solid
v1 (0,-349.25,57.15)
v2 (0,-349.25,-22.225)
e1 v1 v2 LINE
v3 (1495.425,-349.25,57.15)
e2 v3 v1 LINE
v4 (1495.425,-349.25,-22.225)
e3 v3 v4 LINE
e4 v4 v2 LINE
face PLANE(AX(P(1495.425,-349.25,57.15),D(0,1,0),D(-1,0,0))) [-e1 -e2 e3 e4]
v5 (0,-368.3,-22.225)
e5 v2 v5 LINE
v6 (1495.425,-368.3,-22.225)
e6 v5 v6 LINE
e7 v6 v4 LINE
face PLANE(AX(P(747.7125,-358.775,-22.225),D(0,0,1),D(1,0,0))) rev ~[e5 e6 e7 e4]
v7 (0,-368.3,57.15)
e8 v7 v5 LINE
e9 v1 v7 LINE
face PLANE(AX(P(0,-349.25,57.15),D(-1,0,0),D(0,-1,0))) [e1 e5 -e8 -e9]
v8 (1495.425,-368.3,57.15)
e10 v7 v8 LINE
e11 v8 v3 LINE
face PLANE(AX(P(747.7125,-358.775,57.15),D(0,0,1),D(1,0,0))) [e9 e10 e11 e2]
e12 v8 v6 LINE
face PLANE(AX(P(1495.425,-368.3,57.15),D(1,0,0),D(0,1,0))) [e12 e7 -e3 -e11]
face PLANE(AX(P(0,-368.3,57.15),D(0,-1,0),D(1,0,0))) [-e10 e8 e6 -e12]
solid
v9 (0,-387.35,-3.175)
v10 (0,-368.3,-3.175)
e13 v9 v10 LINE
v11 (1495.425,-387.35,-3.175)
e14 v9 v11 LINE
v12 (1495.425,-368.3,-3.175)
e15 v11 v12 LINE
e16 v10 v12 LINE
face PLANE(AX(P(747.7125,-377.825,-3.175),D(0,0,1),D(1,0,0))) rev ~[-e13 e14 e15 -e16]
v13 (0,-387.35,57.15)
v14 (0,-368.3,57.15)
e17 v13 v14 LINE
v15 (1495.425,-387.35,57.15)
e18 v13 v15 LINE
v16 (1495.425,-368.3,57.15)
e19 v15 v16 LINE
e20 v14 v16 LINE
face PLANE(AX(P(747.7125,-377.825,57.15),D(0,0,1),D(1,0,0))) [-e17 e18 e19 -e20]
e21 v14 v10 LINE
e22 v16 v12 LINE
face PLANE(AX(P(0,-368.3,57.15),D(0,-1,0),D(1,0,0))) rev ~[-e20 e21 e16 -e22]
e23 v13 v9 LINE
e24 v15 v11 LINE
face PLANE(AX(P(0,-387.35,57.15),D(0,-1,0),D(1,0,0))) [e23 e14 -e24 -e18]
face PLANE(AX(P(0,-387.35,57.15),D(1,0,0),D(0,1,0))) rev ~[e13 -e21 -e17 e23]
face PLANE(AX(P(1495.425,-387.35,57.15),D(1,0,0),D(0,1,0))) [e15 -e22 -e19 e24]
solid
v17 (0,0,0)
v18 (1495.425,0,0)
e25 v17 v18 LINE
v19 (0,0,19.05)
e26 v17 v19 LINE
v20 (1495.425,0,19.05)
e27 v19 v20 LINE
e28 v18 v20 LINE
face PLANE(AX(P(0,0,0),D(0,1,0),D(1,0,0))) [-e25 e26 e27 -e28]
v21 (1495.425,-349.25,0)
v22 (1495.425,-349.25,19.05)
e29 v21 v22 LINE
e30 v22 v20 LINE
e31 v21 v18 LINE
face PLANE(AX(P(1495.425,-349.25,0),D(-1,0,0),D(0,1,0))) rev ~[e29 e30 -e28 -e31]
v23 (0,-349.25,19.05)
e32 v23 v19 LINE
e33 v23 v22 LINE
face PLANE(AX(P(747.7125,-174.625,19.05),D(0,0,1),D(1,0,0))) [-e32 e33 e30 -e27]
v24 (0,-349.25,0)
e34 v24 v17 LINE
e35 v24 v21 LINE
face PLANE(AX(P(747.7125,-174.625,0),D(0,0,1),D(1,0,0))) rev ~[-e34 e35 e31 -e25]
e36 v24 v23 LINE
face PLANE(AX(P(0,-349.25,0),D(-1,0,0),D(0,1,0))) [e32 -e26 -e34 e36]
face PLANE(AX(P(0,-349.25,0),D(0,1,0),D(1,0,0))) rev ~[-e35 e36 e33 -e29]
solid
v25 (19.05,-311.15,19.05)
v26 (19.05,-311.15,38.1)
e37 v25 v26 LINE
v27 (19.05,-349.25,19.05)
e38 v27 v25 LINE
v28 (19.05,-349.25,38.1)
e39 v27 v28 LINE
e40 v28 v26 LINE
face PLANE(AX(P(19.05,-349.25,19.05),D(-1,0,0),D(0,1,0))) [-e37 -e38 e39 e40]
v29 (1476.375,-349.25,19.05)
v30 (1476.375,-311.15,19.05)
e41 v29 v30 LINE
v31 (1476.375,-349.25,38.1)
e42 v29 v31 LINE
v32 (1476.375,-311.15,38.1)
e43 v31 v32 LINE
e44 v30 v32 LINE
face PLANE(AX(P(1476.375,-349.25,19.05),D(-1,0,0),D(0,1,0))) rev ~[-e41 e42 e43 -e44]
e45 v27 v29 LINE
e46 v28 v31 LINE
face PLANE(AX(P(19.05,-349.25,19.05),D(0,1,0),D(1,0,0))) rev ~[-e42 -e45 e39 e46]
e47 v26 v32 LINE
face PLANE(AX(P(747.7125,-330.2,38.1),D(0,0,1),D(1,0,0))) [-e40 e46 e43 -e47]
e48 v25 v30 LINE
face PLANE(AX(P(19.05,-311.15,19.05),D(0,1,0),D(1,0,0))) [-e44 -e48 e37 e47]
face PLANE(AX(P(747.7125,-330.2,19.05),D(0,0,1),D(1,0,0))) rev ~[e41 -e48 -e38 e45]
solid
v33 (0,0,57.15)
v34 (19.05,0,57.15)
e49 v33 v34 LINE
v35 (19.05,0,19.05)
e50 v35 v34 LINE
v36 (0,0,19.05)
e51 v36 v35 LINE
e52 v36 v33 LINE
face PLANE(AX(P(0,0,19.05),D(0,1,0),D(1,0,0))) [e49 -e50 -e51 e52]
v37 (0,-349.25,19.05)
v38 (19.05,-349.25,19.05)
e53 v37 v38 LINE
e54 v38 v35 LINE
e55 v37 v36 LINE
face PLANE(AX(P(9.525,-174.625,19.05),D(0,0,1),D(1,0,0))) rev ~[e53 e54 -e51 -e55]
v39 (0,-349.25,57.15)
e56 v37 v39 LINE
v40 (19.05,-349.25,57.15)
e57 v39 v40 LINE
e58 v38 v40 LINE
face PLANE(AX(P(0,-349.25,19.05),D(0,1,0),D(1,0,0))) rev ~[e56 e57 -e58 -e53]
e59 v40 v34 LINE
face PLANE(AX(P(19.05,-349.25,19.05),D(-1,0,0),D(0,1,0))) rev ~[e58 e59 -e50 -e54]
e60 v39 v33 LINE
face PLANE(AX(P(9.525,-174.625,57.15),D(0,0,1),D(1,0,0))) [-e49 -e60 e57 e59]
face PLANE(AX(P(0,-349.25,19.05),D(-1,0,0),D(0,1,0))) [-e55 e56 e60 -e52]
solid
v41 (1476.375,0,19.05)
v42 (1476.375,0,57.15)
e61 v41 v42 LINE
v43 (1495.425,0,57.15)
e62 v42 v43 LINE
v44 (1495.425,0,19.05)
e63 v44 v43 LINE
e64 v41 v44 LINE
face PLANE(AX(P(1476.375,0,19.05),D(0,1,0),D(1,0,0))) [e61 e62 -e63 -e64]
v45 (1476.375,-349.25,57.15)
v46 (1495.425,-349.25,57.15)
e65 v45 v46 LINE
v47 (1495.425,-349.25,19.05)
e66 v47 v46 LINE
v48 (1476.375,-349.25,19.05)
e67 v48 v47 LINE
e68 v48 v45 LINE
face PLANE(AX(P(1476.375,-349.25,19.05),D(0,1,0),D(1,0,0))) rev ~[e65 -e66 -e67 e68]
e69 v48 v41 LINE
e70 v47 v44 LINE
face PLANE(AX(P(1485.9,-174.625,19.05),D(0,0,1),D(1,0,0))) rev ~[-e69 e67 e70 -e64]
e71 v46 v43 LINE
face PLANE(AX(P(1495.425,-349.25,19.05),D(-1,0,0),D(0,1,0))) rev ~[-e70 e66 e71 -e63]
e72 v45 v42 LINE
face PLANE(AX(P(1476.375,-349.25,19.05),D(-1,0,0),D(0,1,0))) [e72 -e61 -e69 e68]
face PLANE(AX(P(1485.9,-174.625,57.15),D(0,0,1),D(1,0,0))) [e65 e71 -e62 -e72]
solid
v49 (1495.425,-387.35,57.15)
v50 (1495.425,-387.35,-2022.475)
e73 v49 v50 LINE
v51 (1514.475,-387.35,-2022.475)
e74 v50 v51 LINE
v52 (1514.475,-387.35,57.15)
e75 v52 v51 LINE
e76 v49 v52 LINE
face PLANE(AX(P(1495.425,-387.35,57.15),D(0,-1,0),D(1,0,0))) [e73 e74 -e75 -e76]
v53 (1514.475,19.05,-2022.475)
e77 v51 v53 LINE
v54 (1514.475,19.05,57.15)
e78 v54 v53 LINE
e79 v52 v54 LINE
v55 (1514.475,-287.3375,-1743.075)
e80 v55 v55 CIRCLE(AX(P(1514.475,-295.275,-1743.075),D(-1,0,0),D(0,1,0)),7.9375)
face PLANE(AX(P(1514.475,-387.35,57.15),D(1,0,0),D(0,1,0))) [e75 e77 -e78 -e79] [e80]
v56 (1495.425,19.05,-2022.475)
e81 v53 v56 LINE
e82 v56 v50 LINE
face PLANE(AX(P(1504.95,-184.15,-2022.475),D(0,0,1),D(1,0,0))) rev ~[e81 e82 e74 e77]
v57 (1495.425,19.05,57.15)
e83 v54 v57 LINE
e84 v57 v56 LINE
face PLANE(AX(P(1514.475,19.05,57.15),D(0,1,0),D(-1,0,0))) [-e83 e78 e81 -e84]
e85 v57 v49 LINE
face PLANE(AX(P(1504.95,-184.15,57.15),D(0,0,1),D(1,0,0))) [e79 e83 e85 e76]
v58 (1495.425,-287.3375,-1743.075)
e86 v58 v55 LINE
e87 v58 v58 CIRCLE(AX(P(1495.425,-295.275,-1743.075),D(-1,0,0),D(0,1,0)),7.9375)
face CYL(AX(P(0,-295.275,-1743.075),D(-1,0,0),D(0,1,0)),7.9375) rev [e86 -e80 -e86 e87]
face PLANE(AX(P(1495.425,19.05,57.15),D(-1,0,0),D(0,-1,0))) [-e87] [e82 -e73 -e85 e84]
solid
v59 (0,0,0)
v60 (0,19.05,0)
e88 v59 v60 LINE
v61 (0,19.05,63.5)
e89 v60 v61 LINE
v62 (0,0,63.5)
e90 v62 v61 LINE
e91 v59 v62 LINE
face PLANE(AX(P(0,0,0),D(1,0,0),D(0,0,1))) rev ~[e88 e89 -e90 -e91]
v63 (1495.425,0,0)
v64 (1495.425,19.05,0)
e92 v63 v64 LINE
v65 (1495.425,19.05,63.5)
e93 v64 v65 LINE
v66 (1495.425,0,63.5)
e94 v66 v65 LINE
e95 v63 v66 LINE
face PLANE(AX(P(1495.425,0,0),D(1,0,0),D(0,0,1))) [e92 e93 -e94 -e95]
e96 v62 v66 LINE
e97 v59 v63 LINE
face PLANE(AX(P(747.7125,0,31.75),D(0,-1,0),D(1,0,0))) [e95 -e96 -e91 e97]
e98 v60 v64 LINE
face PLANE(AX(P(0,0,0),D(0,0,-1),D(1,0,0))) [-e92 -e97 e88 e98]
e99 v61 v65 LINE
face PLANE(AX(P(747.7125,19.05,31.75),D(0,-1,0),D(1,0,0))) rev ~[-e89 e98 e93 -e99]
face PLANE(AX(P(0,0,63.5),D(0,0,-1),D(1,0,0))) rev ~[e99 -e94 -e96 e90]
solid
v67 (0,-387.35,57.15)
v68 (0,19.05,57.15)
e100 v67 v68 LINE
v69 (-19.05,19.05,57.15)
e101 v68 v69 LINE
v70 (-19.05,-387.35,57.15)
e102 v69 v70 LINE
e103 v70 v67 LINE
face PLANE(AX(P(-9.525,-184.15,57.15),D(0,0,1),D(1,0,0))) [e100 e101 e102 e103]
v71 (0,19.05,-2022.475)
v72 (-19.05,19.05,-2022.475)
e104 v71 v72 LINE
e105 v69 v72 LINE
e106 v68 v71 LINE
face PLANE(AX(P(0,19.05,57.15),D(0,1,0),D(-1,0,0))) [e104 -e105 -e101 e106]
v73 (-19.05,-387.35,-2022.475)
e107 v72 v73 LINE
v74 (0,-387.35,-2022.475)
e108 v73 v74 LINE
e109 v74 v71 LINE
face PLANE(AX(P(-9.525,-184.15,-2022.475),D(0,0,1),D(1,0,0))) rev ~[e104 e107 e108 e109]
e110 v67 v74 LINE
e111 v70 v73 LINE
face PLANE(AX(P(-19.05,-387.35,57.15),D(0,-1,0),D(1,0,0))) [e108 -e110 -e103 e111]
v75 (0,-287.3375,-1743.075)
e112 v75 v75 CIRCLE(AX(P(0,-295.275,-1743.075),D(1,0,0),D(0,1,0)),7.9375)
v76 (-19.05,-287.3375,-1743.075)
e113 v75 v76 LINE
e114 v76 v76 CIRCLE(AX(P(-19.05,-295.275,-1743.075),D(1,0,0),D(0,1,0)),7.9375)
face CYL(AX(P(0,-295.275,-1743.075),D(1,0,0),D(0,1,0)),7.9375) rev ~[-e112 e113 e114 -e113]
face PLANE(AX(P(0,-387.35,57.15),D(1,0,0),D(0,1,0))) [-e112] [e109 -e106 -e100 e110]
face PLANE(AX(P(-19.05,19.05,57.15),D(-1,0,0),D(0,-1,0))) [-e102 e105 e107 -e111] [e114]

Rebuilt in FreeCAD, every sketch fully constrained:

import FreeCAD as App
import Part
import Sketcher

V = App.Vector
Q = App.Units.Quantity


def add_polygon(sketch, points):
    """Adds a closed chain of lines whose ends are joined by coincident constraints."""
    first, n = sketch.GeometryCount, len(points)
    for a, b in zip(points, points[1:] + points[:1]):
        sketch.addGeometry(Part.LineSegment(App.Vector(*a, 0), App.Vector(*b, 0)), False)
    for i in range(n):
        sketch.addConstraint(Sketcher.Constraint("Coincident", first + i, 2, first + (i + 1) % n, 1))

doc = App.newDocument("Part")
params = doc.addObject("Spreadsheet::Sheet", "Params")
for row, (alias, value) in enumerate([
    ("sketch1_height", "13.75 in"),
    ("sketch1_width", "58.875 in"),
    ("pad1_length", "0.75 in"),
    ("sketch2_width", "0.75 in"),
    ("sketch2_height", "13.75 in"),
    ("pad2_length", "1.5 in"),
    ("sketch3_width", "0.75 in"),
    ("sketch3_height", "13.75 in"),
    ("pad3_length", "1.5 in"),
    ("sketch4_height", "2.5 in"),
    ("sketch4_width", "58.875 in"),
    ("pad4_length", "0.75 in"),
    ("sketch5_height", "0.75 in"),
    ("sketch5_width", "58.875 in"),
    ("pad5_length", "3.125 in"),
    ("sketch6_height", "0.75 in"),
    ("sketch6_width", "58.875 in"),
    ("pad6_length", "2.375 in"),
    ("sketch7_height", "1.5 in"),
    ("sketch7_width", "57.375 in"),
    ("pad7_length", "0.75 in"),
    ("sketch8_height", "16 in"),
    ("sketch8_width", "0.75 in"),
    ("pad8_length", "81.875 in"),
    ("sketch9_height", "16 in"),
    ("sketch9_width", "0.75 in"),
    ("pad9_length", "81.875 in"),
    ("sketch10_diameter", "0.625 in"),
    ("pad10_length", "19.051 mm"),
    ("pad10_length2", "1514.476 mm"),
], start=1):
    params.set(f"A{row}", alias)
    params.set(f"B{row}", "=" + value)
    params.setAlias(f"B{row}", alias)

body = doc.addObject("PartDesign::Body", "Body")

# Sketch on XY plane
sketch1 = body.newObject("Sketcher::SketchObject", "Sketch")
sketch1.AttachmentSupport = (doc.getObject("XY_Plane"), [""])
sketch1.MapMode = "FlatFace"
add_polygon(sketch1, [(0, 0), (0, -349.25), (1495.425, -349.25), (1495.425, 0)])  # lines 0-3
sketch1.addConstraint(Sketcher.Constraint("Vertical", 0))
sketch1.addConstraint(Sketcher.Constraint("Horizontal", 1))
sketch1.addConstraint(Sketcher.Constraint("Vertical", 2))
sketch1.addConstraint(Sketcher.Constraint("Horizontal", 3))
sketch1.addConstraint(Sketcher.Constraint("Coincident", 3, 2, -1, 1))
sketch1.addConstraint(Sketcher.Constraint("DistanceY", 0, 2, 0, 1, Q("13.75 in")))
sketch1.addConstraint(Sketcher.Constraint("DistanceX", 1, 1, 1, 2, Q("58.875 in")))
sketch1.setExpression("Constraints[9]", "Params.sketch1_height")
sketch1.setExpression("Constraints[10]", "Params.sketch1_width")
pad1 = body.newObject("PartDesign::Pad", "Pad")
pad1.Profile = sketch1
pad1.setExpression("Length", "Params.pad1_length")
body2 = doc.addObject("PartDesign::Body", "Body001")

# Sketch on XY plane
sketch2 = body2.newObject("Sketcher::SketchObject", "Sketch001")
sketch2.AttachmentSupport = (doc.getObject("XY_Plane001"), [""])
sketch2.MapMode = "FlatFace"
sketch2.AttachmentOffset = App.Placement(V(0, 0, 0.75 * 25.4), App.Rotation())
add_polygon(sketch2, [(0, 0), (0, -349.25), (19.05, -349.25), (19.05, 0)])  # lines 0-3
sketch2.addConstraint(Sketcher.Constraint("Vertical", 0))
sketch2.addConstraint(Sketcher.Constraint("Horizontal", 1))
sketch2.addConstraint(Sketcher.Constraint("Vertical", 2))
sketch2.addConstraint(Sketcher.Constraint("Horizontal", 3))
sketch2.addConstraint(Sketcher.Constraint("Coincident", 3, 2, -1, 1))
sketch2.addConstraint(Sketcher.Constraint("DistanceX", 1, 1, 1, 2, Q("0.75 in")))
sketch2.addConstraint(Sketcher.Constraint("DistanceY", 0, 2, 0, 1, Q("13.75 in")))
sketch2.setExpression("Constraints[9]", "Params.sketch2_width")
sketch2.setExpression("Constraints[10]", "Params.sketch2_height")
pad2 = body2.newObject("PartDesign::Pad", "Pad001")
pad2.Profile = sketch2
pad2.setExpression("Length", "Params.pad2_length")
body3 = doc.addObject("PartDesign::Body", "Body002")

# Sketch on XY plane
sketch3 = body3.newObject("Sketcher::SketchObject", "Sketch002")
sketch3.AttachmentSupport = (doc.getObject("XY_Plane002"), [""])
sketch3.MapMode = "FlatFace"
sketch3.AttachmentOffset = App.Placement(V(0, 0, 0.75 * 25.4), App.Rotation())
add_polygon(sketch3, [(1476.375, 0), (1476.375, -349.25), (1495.425, -349.25), (1495.425, 0)])  # lines 0-3
sketch3.addConstraint(Sketcher.Constraint("Vertical", 0))
sketch3.addConstraint(Sketcher.Constraint("Horizontal", 1))
sketch3.addConstraint(Sketcher.Constraint("Vertical", 2))
sketch3.addConstraint(Sketcher.Constraint("Horizontal", 3))
sketch3.addConstraint(Sketcher.Constraint("PointOnObject", 2, 2, -1))
sketch3.addConstraint(Sketcher.Constraint("DistanceX", 1, 1, 1, 2, Q("0.75 in")))
sketch3.addConstraint(Sketcher.Constraint("DistanceY", 0, 2, 0, 1, Q("13.75 in")))
sketch3.addConstraint(Sketcher.Constraint("DistanceX", -1, 1, 0, 2, Q("58.125 in")))
sketch3.setExpression("Constraints[9]", "Params.sketch3_width")
sketch3.setExpression("Constraints[10]", "Params.sketch3_height")
pad3 = body3.newObject("PartDesign::Pad", "Pad002")
pad3.Profile = sketch3
pad3.setExpression("Length", "Params.pad3_length")
body4 = doc.addObject("PartDesign::Body", "Body003")

# Sketch on XZ plane
sketch4 = body4.newObject("Sketcher::SketchObject", "Sketch003")
sketch4.AttachmentSupport = (doc.getObject("XZ_Plane003"), [""])
sketch4.MapMode = "FlatFace"
add_polygon(sketch4, [(0, 63.5), (0, 0), (1495.425, 0), (1495.425, 63.5)])  # lines 0-3
sketch4.addConstraint(Sketcher.Constraint("Vertical", 0))
sketch4.addConstraint(Sketcher.Constraint("Horizontal", 1))
sketch4.addConstraint(Sketcher.Constraint("Vertical", 2))
sketch4.addConstraint(Sketcher.Constraint("Horizontal", 3))
sketch4.addConstraint(Sketcher.Constraint("Coincident", 0, 2, -1, 1))
sketch4.addConstraint(Sketcher.Constraint("DistanceY", 0, 2, 0, 1, Q("2.5 in")))
sketch4.addConstraint(Sketcher.Constraint("DistanceX", 1, 1, 1, 2, Q("58.875 in")))
sketch4.setExpression("Constraints[9]", "Params.sketch4_height")
sketch4.setExpression("Constraints[10]", "Params.sketch4_width")
pad4 = body4.newObject("PartDesign::Pad", "Pad003")
pad4.Profile = sketch4
pad4.setExpression("Length", "Params.pad4_length")
pad4.Reversed = True
body5 = doc.addObject("PartDesign::Body", "Body004")

# Sketch on XY plane
sketch5 = body5.newObject("Sketcher::SketchObject", "Sketch004")
sketch5.AttachmentSupport = (doc.getObject("XY_Plane004"), [""])
sketch5.MapMode = "FlatFace"
sketch5.AttachmentOffset = App.Placement(V(0, 0, 2.25 * 25.4), App.Rotation())
add_polygon(sketch5, [(0, -349.25), (0, -368.3), (1495.425, -368.3), (1495.425, -349.25)])  # lines 0-3
sketch5.addConstraint(Sketcher.Constraint("Vertical", 0))
sketch5.addConstraint(Sketcher.Constraint("Horizontal", 1))
sketch5.addConstraint(Sketcher.Constraint("Vertical", 2))
sketch5.addConstraint(Sketcher.Constraint("Horizontal", 3))
sketch5.addConstraint(Sketcher.Constraint("PointOnObject", 0, 2, -2))
sketch5.addConstraint(Sketcher.Constraint("DistanceY", 0, 2, 0, 1, Q("0.75 in")))
sketch5.addConstraint(Sketcher.Constraint("DistanceY", 0, 2, -1, 1, Q("14.5 in")))
sketch5.addConstraint(Sketcher.Constraint("DistanceX", 1, 1, 1, 2, Q("58.875 in")))
sketch5.setExpression("Constraints[9]", "Params.sketch5_height")
sketch5.setExpression("Constraints[11]", "Params.sketch5_width")
pad5 = body5.newObject("PartDesign::Pad", "Pad004")
pad5.Profile = sketch5
pad5.setExpression("Length", "Params.pad5_length")
pad5.Reversed = True
body6 = doc.addObject("PartDesign::Body", "Body005")

# Sketch on XY plane
sketch6 = body6.newObject("Sketcher::SketchObject", "Sketch005")
sketch6.AttachmentSupport = (doc.getObject("XY_Plane005"), [""])
sketch6.MapMode = "FlatFace"
sketch6.AttachmentOffset = App.Placement(V(0, 0, 2.25 * 25.4), App.Rotation())
add_polygon(sketch6, [(0, -368.3), (0, -387.35), (1495.425, -387.35), (1495.425, -368.3)])  # lines 0-3
sketch6.addConstraint(Sketcher.Constraint("Vertical", 0))
sketch6.addConstraint(Sketcher.Constraint("Horizontal", 1))
sketch6.addConstraint(Sketcher.Constraint("Vertical", 2))
sketch6.addConstraint(Sketcher.Constraint("Horizontal", 3))
sketch6.addConstraint(Sketcher.Constraint("PointOnObject", 0, 2, -2))
sketch6.addConstraint(Sketcher.Constraint("DistanceY", 0, 2, 0, 1, Q("0.75 in")))
sketch6.addConstraint(Sketcher.Constraint("DistanceY", 2, 2, -1, 1, Q("14.5 in")))
sketch6.addConstraint(Sketcher.Constraint("DistanceX", 1, 1, 1, 2, Q("58.875 in")))
sketch6.setExpression("Constraints[9]", "Params.sketch6_height")
sketch6.setExpression("Constraints[11]", "Params.sketch6_width")
pad6 = body6.newObject("PartDesign::Pad", "Pad005")
pad6.Profile = sketch6
pad6.setExpression("Length", "Params.pad6_length")
pad6.Reversed = True
body7 = doc.addObject("PartDesign::Body", "Body006")

# Sketch on XY plane
sketch7 = body7.newObject("Sketcher::SketchObject", "Sketch006")
sketch7.AttachmentSupport = (doc.getObject("XY_Plane006"), [""])
sketch7.MapMode = "FlatFace"
sketch7.AttachmentOffset = App.Placement(V(0, 0, 0.75 * 25.4), App.Rotation())
add_polygon(sketch7, [(19.05, -311.15), (19.05, -349.25), (1476.375, -349.25), (1476.375, -311.15)])  # lines 0-3
sketch7.addConstraint(Sketcher.Constraint("Vertical", 0))
sketch7.addConstraint(Sketcher.Constraint("Horizontal", 1))
sketch7.addConstraint(Sketcher.Constraint("Vertical", 2))
sketch7.addConstraint(Sketcher.Constraint("Horizontal", 3))
sketch7.addConstraint(Sketcher.Constraint("DistanceY", 0, 2, 0, 1, Q("1.5 in")))
sketch7.addConstraint(Sketcher.Constraint("DistanceX", 1, 1, 1, 2, Q("57.375 in")))
sketch7.addConstraint(Sketcher.Constraint("DistanceX", -1, 1, 0, 2, Q("0.75 in")))
sketch7.addConstraint(Sketcher.Constraint("DistanceY", 0, 2, -1, 1, Q("13.75 in")))
sketch7.setExpression("Constraints[8]", "Params.sketch7_height")
sketch7.setExpression("Constraints[9]", "Params.sketch7_width")
pad7 = body7.newObject("PartDesign::Pad", "Pad006")
pad7.Profile = sketch7
pad7.setExpression("Length", "Params.pad7_length")
body8 = doc.addObject("PartDesign::Body", "Body007")

# Sketch on XY plane
sketch8 = body8.newObject("Sketcher::SketchObject", "Sketch007")
sketch8.AttachmentSupport = (doc.getObject("XY_Plane007"), [""])
sketch8.MapMode = "FlatFace"
sketch8.AttachmentOffset = App.Placement(V(0, 0, 2.25 * 25.4), App.Rotation())
add_polygon(sketch8, [(0, 19.05), (-19.05, 19.05), (-19.05, -387.35), (0, -387.35)])  # lines 0-3
sketch8.addConstraint(Sketcher.Constraint("Horizontal", 0))
sketch8.addConstraint(Sketcher.Constraint("Vertical", 1))
sketch8.addConstraint(Sketcher.Constraint("Horizontal", 2))
sketch8.addConstraint(Sketcher.Constraint("Vertical", 3))
sketch8.addConstraint(Sketcher.Constraint("PointOnObject", 2, 2, -2))
sketch8.addConstraint(Sketcher.Constraint("DistanceY", 1, 2, 1, 1, Q("16 in")))
sketch8.addConstraint(Sketcher.Constraint("DistanceX", 0, 2, 0, 1, Q("0.75 in")))
sketch8.addConstraint(Sketcher.Constraint("DistanceY", -1, 1, 0, 2, Q("0.75 in")))
sketch8.setExpression("Constraints[9]", "Params.sketch8_height")
sketch8.setExpression("Constraints[10]", "Params.sketch8_width")
pad8 = body8.newObject("PartDesign::Pad", "Pad007")
pad8.Profile = sketch8
pad8.setExpression("Length", "Params.pad8_length")
pad8.Reversed = True
body9 = doc.addObject("PartDesign::Body", "Body008")

# Sketch on XY plane
sketch9 = body9.newObject("Sketcher::SketchObject", "Sketch008")
sketch9.AttachmentSupport = (doc.getObject("XY_Plane008"), [""])
sketch9.MapMode = "FlatFace"
sketch9.AttachmentOffset = App.Placement(V(0, 0, 2.25 * 25.4), App.Rotation())
add_polygon(sketch9, [(1495.425, 19.05), (1495.425, -387.35), (1514.475, -387.35), (1514.475, 19.05)])  # lines 0-3
sketch9.addConstraint(Sketcher.Constraint("Vertical", 0))
sketch9.addConstraint(Sketcher.Constraint("Horizontal", 1))
sketch9.addConstraint(Sketcher.Constraint("Vertical", 2))
sketch9.addConstraint(Sketcher.Constraint("Horizontal", 3))
sketch9.addConstraint(Sketcher.Constraint("DistanceY", 0, 2, 0, 1, Q("16 in")))
sketch9.addConstraint(Sketcher.Constraint("DistanceX", 1, 1, 1, 2, Q("0.75 in")))
sketch9.addConstraint(Sketcher.Constraint("DistanceY", 0, 2, -1, 1, Q("15.25 in")))
sketch9.addConstraint(Sketcher.Constraint("DistanceX", -1, 1, 0, 2, Q("58.875 in")))
sketch9.setExpression("Constraints[8]", "Params.sketch9_height")
sketch9.setExpression("Constraints[9]", "Params.sketch9_width")
pad9 = body9.newObject("PartDesign::Pad", "Pad008")
pad9.Profile = sketch9
pad9.setExpression("Length", "Params.pad9_length")
pad9.Reversed = True
body10 = doc.addObject("PartDesign::Body", "Body009")

# Sketch on YZ plane
sketch10 = body10.newObject("Sketcher::SketchObject", "Sketch009")
sketch10.AttachmentSupport = (doc.getObject("YZ_Plane009"), [""])
sketch10.MapMode = "FlatFace"
sketch10.addGeometry(Part.Circle(V(-295.275, -1743.075, 0), V(0, 0, 1), 7.9375), False)
sketch10.addConstraint(Sketcher.Constraint("Diameter", 0, Q("0.625 in")))
sketch10.addConstraint(Sketcher.Constraint("DistanceX", 0, 3, -1, 1, Q("11.625 in")))
sketch10.addConstraint(Sketcher.Constraint("DistanceY", 0, 3, -1, 1, Q("68.625 in")))
sketch10.setExpression("Constraints[0]", "Params.sketch10_diameter")
pad10 = body10.newObject("PartDesign::Pad", "Pad009")
pad10.Profile = sketch10
pad10.Type = "TwoLengths"
pad10.setExpression("Length", "Params.pad10_length")
pad10.setExpression("Length2", "Params.pad10_length2")
pad10.Reversed = True
doc.recompute()

body11 = doc.addObject("PartDesign::Body", "Body010")
body11.BaseFeature = body10
boolean = body8.newObject("PartDesign::Boolean", "Boolean")
boolean.Type = "Cut"
boolean.addObjects([body11])
doc.recompute()

boolean2 = body9.newObject("PartDesign::Boolean", "Boolean001")
boolean2.Type = "Cut"
boolean2.addObjects([body10])

doc.recompute()
